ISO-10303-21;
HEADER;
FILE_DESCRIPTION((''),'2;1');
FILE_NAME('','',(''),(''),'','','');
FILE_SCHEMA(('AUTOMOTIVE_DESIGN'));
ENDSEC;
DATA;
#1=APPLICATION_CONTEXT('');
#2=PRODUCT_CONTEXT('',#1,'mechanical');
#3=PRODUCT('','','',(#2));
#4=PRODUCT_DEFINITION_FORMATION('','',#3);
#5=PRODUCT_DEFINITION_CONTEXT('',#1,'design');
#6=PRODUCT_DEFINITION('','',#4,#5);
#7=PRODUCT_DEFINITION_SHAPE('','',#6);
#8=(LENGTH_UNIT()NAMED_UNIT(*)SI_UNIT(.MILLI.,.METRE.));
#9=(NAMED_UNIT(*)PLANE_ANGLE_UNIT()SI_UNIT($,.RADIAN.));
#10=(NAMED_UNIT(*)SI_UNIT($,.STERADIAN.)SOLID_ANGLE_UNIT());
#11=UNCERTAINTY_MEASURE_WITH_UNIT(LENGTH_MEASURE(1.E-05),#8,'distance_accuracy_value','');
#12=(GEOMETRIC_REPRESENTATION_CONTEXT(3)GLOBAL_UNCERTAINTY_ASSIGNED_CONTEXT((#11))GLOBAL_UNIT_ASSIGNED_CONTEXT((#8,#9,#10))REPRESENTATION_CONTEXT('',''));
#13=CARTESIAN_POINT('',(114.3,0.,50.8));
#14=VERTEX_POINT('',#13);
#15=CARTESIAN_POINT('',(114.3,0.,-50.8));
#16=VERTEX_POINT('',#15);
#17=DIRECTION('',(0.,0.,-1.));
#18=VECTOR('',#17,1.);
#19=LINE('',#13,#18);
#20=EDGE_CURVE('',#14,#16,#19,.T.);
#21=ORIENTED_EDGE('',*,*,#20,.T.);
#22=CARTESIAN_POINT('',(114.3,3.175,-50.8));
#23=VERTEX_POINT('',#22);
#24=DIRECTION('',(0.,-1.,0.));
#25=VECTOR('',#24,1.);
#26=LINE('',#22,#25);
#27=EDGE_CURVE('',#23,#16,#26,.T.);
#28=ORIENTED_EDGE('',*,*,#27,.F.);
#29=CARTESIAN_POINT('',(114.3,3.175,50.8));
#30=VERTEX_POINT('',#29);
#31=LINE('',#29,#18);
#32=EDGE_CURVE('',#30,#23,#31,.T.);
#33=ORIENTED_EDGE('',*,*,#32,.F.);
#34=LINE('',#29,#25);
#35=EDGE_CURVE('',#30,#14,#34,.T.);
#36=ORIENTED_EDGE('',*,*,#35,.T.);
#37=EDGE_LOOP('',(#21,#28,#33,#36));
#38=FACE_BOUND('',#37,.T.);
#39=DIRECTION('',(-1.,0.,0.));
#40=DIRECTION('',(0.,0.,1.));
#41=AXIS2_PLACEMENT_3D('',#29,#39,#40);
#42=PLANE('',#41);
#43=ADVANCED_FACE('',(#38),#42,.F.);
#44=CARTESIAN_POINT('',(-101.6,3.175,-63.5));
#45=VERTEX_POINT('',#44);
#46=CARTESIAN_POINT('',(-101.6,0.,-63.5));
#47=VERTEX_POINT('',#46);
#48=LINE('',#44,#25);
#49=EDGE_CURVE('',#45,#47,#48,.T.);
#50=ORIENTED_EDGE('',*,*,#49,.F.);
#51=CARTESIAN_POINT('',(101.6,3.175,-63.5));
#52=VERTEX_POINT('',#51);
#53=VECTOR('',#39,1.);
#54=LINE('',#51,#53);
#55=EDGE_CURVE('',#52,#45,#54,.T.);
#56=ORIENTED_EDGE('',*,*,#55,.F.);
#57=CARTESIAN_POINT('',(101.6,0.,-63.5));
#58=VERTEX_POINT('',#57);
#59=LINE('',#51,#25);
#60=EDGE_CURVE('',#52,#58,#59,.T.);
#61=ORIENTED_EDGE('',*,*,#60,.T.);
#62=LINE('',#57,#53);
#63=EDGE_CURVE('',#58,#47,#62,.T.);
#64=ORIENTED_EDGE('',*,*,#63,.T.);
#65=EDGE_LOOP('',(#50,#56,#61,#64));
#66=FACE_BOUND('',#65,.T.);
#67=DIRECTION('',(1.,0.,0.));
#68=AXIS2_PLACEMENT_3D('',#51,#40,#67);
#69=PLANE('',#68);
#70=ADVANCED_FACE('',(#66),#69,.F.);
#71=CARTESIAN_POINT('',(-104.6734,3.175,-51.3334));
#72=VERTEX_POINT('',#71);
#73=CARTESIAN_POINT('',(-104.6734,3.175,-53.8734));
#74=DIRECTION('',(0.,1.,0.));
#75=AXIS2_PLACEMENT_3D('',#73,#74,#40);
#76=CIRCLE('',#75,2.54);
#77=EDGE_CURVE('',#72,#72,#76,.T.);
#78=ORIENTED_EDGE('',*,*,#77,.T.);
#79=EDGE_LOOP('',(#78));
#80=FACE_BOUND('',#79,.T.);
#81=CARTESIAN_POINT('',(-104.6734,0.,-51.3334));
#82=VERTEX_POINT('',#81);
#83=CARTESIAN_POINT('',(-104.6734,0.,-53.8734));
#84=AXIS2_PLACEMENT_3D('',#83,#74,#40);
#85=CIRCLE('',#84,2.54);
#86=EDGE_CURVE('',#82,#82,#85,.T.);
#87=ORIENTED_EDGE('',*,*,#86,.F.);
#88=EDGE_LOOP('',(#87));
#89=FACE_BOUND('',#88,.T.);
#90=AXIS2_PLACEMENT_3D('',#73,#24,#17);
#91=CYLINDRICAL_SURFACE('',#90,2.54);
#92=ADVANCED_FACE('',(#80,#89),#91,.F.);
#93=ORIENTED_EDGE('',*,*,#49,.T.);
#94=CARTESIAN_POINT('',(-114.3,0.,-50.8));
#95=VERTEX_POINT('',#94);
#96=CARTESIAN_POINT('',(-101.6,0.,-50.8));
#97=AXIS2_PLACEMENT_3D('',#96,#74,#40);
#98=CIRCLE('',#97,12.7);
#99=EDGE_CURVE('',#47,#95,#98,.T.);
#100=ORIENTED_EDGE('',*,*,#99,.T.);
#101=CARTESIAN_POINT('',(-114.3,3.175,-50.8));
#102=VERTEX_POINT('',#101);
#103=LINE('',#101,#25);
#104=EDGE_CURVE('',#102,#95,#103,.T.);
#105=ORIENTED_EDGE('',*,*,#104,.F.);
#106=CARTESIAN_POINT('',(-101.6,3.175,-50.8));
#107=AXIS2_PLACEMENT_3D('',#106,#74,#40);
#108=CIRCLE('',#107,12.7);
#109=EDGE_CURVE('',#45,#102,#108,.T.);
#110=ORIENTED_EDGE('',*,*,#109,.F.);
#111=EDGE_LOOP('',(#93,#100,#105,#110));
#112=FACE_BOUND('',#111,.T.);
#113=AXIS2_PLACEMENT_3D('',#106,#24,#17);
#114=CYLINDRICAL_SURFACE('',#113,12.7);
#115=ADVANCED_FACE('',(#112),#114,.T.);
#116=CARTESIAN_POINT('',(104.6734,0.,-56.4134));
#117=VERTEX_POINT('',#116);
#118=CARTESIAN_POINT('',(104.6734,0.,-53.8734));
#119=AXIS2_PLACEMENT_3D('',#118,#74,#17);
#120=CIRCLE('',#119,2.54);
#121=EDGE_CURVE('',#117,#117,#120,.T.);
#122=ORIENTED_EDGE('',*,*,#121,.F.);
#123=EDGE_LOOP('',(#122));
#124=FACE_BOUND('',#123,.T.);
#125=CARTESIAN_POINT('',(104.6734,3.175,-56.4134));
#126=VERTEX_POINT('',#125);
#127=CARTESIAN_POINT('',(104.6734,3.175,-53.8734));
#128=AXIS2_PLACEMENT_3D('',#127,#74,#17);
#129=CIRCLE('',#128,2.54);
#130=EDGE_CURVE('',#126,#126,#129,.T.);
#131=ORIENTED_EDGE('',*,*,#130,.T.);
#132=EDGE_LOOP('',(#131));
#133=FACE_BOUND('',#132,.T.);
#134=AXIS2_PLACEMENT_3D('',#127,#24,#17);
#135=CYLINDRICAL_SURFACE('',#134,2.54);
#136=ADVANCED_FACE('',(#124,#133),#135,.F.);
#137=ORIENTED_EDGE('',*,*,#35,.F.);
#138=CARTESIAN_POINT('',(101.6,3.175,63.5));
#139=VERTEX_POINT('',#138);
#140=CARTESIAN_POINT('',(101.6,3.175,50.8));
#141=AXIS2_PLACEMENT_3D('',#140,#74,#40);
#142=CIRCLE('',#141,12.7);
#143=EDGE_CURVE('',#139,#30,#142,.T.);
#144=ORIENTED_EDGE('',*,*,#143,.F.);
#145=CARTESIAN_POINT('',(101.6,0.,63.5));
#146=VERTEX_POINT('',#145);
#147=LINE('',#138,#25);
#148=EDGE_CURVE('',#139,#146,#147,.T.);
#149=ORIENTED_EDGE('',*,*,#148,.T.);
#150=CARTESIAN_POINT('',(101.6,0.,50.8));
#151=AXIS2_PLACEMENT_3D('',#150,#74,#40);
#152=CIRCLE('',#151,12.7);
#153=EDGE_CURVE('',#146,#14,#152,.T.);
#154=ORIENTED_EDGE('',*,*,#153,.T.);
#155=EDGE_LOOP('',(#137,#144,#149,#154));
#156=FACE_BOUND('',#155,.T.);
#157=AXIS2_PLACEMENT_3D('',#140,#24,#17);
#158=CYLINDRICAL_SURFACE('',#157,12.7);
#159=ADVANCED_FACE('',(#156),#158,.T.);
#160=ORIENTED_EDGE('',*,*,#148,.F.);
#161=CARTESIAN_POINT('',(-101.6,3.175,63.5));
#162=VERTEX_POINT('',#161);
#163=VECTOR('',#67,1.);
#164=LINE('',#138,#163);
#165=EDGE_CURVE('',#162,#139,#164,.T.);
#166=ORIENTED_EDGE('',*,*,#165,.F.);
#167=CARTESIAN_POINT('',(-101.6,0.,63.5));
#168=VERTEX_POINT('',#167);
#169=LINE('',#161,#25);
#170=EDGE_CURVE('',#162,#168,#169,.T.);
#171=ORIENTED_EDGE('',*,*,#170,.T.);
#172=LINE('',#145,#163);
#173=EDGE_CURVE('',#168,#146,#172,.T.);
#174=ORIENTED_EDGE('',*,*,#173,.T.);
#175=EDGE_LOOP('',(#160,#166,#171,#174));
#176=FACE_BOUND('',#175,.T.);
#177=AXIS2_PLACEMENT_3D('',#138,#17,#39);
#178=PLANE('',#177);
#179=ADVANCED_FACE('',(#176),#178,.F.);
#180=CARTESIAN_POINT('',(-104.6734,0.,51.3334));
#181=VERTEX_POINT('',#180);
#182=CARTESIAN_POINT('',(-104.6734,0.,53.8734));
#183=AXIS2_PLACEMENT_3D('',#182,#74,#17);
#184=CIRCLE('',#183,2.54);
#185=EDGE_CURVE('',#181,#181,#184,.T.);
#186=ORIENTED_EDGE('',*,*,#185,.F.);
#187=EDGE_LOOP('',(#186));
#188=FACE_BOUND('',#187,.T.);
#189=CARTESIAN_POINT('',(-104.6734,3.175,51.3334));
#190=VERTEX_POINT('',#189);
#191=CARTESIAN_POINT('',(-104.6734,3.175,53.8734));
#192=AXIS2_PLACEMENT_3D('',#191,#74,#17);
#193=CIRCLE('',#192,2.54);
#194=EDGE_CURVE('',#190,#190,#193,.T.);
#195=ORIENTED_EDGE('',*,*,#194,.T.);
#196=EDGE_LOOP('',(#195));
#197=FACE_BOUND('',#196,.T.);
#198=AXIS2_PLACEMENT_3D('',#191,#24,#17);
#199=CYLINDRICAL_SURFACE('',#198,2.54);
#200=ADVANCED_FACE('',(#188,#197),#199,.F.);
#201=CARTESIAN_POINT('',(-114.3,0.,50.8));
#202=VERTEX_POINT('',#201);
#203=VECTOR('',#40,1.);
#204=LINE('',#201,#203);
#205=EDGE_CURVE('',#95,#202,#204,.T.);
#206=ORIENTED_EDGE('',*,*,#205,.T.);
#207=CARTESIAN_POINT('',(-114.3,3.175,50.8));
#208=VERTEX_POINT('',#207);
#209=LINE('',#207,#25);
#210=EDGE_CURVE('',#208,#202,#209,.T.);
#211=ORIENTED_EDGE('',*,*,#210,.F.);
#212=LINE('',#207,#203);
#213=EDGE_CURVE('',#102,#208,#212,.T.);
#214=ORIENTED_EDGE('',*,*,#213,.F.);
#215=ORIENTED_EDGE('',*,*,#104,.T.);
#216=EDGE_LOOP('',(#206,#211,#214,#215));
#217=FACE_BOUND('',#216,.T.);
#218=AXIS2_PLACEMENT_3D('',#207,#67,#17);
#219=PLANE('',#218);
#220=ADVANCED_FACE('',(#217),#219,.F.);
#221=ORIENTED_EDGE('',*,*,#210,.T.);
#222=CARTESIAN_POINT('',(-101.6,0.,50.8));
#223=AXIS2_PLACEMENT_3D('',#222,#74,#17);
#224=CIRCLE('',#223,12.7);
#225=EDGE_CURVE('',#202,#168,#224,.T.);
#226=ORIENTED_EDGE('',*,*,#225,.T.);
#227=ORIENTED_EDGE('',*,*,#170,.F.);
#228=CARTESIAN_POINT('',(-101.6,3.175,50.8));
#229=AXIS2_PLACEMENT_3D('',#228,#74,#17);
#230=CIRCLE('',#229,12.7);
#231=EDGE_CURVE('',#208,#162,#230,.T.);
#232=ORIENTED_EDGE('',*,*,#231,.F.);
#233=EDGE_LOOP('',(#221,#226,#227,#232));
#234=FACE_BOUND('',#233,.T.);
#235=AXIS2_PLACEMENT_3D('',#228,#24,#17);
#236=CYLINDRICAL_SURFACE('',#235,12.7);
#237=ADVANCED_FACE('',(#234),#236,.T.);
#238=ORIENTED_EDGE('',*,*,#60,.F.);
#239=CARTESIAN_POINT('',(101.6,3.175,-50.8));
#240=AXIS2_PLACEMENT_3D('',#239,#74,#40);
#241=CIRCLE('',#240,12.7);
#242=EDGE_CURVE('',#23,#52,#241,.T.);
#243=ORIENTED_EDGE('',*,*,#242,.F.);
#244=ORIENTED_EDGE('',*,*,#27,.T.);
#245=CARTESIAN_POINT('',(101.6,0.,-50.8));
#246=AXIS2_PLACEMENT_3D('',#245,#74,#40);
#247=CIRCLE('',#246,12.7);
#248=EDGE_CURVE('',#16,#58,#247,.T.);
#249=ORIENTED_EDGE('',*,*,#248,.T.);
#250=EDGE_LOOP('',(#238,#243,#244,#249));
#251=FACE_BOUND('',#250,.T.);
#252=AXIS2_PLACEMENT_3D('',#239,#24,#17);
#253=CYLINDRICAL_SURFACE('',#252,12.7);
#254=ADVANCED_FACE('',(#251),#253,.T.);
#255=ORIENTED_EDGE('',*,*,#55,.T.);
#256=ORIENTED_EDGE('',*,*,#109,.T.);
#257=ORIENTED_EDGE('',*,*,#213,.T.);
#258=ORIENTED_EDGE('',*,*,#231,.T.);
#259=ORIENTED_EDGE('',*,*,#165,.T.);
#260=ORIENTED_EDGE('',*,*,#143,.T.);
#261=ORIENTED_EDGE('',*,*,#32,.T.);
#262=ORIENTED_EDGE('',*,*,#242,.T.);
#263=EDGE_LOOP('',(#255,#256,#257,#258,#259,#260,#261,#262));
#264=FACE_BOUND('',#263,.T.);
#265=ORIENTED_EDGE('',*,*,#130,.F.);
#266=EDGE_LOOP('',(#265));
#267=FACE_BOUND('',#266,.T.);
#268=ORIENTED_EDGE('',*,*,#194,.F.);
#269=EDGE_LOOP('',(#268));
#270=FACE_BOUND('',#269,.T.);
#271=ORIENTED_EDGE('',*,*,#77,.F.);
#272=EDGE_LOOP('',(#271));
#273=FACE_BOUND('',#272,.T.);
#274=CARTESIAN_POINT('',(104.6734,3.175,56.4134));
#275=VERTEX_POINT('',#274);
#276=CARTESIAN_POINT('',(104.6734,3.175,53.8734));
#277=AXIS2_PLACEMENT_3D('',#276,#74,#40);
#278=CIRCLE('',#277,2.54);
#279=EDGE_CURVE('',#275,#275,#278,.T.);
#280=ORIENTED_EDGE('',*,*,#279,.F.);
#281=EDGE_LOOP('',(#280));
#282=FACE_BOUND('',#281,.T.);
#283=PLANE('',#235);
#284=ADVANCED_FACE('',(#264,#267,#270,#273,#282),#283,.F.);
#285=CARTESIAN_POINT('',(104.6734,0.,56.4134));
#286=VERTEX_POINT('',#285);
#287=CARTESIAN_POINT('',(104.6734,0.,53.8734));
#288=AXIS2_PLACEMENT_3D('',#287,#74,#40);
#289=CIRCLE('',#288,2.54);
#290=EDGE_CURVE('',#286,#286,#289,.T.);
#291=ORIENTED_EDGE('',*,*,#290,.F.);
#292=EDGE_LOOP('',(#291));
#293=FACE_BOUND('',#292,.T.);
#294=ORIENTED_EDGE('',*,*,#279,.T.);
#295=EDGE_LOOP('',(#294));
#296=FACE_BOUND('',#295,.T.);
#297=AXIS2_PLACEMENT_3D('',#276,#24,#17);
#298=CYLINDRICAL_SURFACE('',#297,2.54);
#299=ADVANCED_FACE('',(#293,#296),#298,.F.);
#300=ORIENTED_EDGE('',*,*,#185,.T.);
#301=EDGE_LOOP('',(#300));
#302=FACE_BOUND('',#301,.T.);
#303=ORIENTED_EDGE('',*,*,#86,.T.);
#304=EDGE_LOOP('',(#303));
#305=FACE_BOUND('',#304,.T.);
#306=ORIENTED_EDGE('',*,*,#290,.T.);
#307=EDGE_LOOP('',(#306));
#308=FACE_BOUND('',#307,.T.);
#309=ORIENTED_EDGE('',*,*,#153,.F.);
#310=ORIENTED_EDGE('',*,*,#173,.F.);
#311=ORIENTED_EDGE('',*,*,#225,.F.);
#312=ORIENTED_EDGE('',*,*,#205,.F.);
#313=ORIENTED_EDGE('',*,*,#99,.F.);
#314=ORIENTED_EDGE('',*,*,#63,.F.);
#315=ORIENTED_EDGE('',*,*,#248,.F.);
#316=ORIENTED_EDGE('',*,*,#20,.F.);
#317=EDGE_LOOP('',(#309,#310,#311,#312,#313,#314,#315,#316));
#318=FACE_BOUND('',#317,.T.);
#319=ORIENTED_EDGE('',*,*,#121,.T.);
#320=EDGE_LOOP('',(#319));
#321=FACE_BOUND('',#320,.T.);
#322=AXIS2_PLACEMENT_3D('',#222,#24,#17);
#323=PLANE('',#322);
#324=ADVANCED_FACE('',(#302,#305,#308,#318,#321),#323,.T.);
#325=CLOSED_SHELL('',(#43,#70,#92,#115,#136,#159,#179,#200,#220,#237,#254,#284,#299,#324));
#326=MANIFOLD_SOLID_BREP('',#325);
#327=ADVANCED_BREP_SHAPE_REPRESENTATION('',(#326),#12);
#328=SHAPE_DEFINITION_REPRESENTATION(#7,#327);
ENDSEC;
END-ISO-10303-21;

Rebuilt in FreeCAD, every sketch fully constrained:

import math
import FreeCAD as App
import Part
import Sketcher
Q = App.Units.Quantity

doc = App.newDocument("Part")
body = doc.addObject("PartDesign::Body", "Body")

# Sketch on XZ plane
sketch1 = doc.addObject("Sketcher::SketchObject", "Sketch")
body.addObject(sketch1)
sketch1.AttachmentSupport = (doc.XZ_Plane, [""])
sketch1.MapMode = "FlatFace"
sketch1.addGeometry([
    Part.LineSegment(App.Vector(-101.6, 63.5, 0), App.Vector(101.6, 63.5, 0)),  # 0
    Part.ArcOfCircle(Part.Circle(App.Vector(101.6, 50.8, 0), App.Vector(0, 0, 1), 12.7), math.radians(0), math.radians(90)),  # 1
    Part.LineSegment(App.Vector(114.3, 50.8, 0), App.Vector(114.3, -50.8, 0)),  # 2
    Part.ArcOfCircle(Part.Circle(App.Vector(101.6, -50.8, 0), App.Vector(0, 0, 1), 12.7), math.radians(-90), math.radians(0)),  # 3
    Part.LineSegment(App.Vector(101.6, -63.5, 0), App.Vector(-101.6, -63.5, 0)),  # 4
    Part.ArcOfCircle(Part.Circle(App.Vector(-101.6, -50.8, 0), App.Vector(0, 0, 1), 12.7), math.radians(180), math.radians(270)),  # 5
    Part.LineSegment(App.Vector(-114.3, -50.8, 0), App.Vector(-114.3, 50.8, 0)),  # 6
    Part.ArcOfCircle(Part.Circle(App.Vector(-101.6, 50.8, 0), App.Vector(0, 0, 1), 12.7), math.radians(90), math.radians(180)),  # 7
    Part.Circle(App.Vector(104.7, 53.9, 0), App.Vector(0, 0, 1), 2.5),  # 8
    Part.Circle(App.Vector(-104.7, 53.9, 0), App.Vector(0, 0, 1), 2.5),  # 9
    Part.Circle(App.Vector(104.7, -53.9, 0), App.Vector(0, 0, 1), 2.5),  # 10
    Part.Circle(App.Vector(-104.7, -53.9, 0), App.Vector(0, 0, 1), 2.5),  # 11
], False)
sketch1.addConstraint([
    Sketcher.Constraint("Tangent", 0, 2, 1, 2),
    Sketcher.Constraint("Tangent", 1, 1, 2, 1),
    Sketcher.Constraint("Tangent", 2, 2, 3, 2),
    Sketcher.Constraint("Tangent", 3, 1, 4, 1),
    Sketcher.Constraint("Tangent", 4, 2, 5, 2),
    Sketcher.Constraint("Tangent", 5, 1, 6, 1),
    Sketcher.Constraint("Tangent", 6, 2, 7, 2),
    Sketcher.Constraint("Tangent", 7, 1, 0, 1),
    Sketcher.Constraint("Horizontal", 0),
    Sketcher.Constraint("Vertical", 2),
    Sketcher.Constraint("Horizontal", 4),
    Sketcher.Constraint("Vertical", 6),
    Sketcher.Constraint("Equal", 1, 3),
    Sketcher.Constraint("Equal", 3, 5),
    Sketcher.Constraint("Equal", 5, 7),
    Sketcher.Constraint("Equal", 8, 9),
    Sketcher.Constraint("Equal", 9, 10),
    Sketcher.Constraint("Equal", 10, 11),
    Sketcher.Constraint("Symmetric", 1, 3, 5, 3, -1, 1),
    Sketcher.Constraint("Symmetric", 9, 3, 10, 3, -1, 1),
    Sketcher.Constraint("Symmetric", 8, 3, 11, 3, -1, 1),
    Sketcher.Constraint("Symmetric", 8, 3, 9, 3, -2),
    Sketcher.Constraint("Diameter", 8, Q("0.2 in")),
    Sketcher.Constraint("Radius", 1, Q("0.5 in")),
    Sketcher.Constraint("DistanceX", 0, 1, 0, 2, Q("8 in")),
    Sketcher.Constraint("DistanceY", 2, 2, 2, 1, Q("4 in")),
    Sketcher.Constraint("DistanceX", -1, 1, 8, 3, Q("4.121 in")),
    Sketcher.Constraint("DistanceY", -1, 1, 8, 3, Q("2.121 in")),
])
pad1 = doc.addObject("PartDesign::Pad", "Pad")
body.addObject(pad1)
pad1.Profile = sketch1
pad1.Length = Q("0.125 in")
pad1.Reversed = True

doc.recompute()
